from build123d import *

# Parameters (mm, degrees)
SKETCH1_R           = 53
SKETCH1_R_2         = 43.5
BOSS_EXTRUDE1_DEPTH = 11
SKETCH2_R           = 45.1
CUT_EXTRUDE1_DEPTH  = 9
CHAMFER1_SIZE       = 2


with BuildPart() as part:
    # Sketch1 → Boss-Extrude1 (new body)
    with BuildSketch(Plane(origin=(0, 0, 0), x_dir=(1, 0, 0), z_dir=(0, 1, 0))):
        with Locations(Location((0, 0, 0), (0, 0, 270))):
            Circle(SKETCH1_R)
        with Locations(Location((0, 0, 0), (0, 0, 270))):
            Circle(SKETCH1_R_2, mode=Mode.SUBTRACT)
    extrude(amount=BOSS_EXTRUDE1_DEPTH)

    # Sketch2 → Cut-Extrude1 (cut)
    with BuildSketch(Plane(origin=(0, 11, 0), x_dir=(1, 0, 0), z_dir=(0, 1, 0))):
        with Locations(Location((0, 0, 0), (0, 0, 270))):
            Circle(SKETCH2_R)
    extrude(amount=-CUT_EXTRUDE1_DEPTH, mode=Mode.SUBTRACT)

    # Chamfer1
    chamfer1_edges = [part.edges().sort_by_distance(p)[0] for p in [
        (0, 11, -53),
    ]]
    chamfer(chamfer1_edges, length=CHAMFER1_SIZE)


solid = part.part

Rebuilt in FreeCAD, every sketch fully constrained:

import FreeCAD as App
import Part
import Sketcher
from FreeCAD import Vector


def edges_at(feature, points):
    """Names of the edges that pass closest to the given points."""
    edges = feature.Shape.Edges
    near = lambda p: min(range(len(edges)), key=lambda i: edges[i].distToShape(Part.Vertex(*p))[0])
    return sorted({f"Edge{near(p) + 1}" for p in points})

doc = App.newDocument("Part")
params = doc.addObject("Spreadsheet::Sheet", "Params")
for row, (alias, value) in enumerate([
    ("sketch1_diameter", "106 mm"),
    ("sketch1_diameter2", "87 mm"),
    ("pad1_length", "11 mm"),
    ("sketch2_diameter", "90.2 mm"),
    ("pocket1_length", "9 mm"),
    ("chamfer_size", "2 mm"),
], start=1):
    params.set(f"A{row}", alias)
    params.set(f"B{row}", "=" + value)
    params.setAlias(f"B{row}", alias)

body = doc.addObject("PartDesign::Body", "Body")

sketch1 = doc.addObject("Sketcher::SketchObject", "Sketch")
body.addObject(sketch1)
sketch1.AttachmentSupport = (doc.XZ_Plane, [""])
sketch1.MapMode = "FlatFace"
sketch1.addGeometry([
    Part.Circle(Vector(0, 0, 0), Vector(0, 0, 1), 53),
    Part.Circle(Vector(0, 0, 0), Vector(0, 0, 1), 44),
], False)
sketch1.addConstraint([
    Sketcher.Constraint("Coincident", 0, 3, -1, 1),
    Sketcher.Constraint("Coincident", 1, 3, -1, 1),
    Sketcher.Constraint("Diameter", 0, 106.0),
    Sketcher.Constraint("Diameter", 1, 87.0),
])
sketch1.setExpression("Constraints[2]", "Params.sketch1_diameter")
sketch1.setExpression("Constraints[3]", "Params.sketch1_diameter2")
pad1 = doc.addObject("PartDesign::Pad", "Pad")
body.addObject(pad1)
pad1.Profile = sketch1
pad1.setExpression("Length", "Params.pad1_length")
pad1.Reversed = True

sketch2 = doc.addObject("Sketcher::SketchObject", "Sketch001")
body.addObject(sketch2)
sketch2.AttachmentSupport = (doc.XZ_Plane, [""])
sketch2.MapMode = "FlatFace"
sketch2.AttachmentOffset = App.Placement(Vector(0, 0, -11), App.Rotation())
sketch2.addGeometry(Part.Circle(Vector(0, 0, 0), Vector(0, 0, 1), 45), False)
sketch2.addConstraint([
    Sketcher.Constraint("Coincident", 0, 3, -1, 1),
    Sketcher.Constraint("Diameter", 0, 90.2),
])
sketch2.setExpression("Constraints[1]", "Params.sketch2_diameter")
pocket1 = doc.addObject("PartDesign::Pocket", "Pocket")
body.addObject(pocket1)
pocket1.Profile = sketch2
pocket1.setExpression("Length", "Params.pocket1_length")
pocket1.Reversed = True
doc.recompute()

chamfer = doc.addObject("PartDesign::Chamfer", "Chamfer")
body.addObject(chamfer)
chamfer.Base = (pocket1, edges_at(pocket1, [(0, 11, -53)]))
chamfer.setExpression("Size", "Params.chamfer_size")

doc.recompute()
